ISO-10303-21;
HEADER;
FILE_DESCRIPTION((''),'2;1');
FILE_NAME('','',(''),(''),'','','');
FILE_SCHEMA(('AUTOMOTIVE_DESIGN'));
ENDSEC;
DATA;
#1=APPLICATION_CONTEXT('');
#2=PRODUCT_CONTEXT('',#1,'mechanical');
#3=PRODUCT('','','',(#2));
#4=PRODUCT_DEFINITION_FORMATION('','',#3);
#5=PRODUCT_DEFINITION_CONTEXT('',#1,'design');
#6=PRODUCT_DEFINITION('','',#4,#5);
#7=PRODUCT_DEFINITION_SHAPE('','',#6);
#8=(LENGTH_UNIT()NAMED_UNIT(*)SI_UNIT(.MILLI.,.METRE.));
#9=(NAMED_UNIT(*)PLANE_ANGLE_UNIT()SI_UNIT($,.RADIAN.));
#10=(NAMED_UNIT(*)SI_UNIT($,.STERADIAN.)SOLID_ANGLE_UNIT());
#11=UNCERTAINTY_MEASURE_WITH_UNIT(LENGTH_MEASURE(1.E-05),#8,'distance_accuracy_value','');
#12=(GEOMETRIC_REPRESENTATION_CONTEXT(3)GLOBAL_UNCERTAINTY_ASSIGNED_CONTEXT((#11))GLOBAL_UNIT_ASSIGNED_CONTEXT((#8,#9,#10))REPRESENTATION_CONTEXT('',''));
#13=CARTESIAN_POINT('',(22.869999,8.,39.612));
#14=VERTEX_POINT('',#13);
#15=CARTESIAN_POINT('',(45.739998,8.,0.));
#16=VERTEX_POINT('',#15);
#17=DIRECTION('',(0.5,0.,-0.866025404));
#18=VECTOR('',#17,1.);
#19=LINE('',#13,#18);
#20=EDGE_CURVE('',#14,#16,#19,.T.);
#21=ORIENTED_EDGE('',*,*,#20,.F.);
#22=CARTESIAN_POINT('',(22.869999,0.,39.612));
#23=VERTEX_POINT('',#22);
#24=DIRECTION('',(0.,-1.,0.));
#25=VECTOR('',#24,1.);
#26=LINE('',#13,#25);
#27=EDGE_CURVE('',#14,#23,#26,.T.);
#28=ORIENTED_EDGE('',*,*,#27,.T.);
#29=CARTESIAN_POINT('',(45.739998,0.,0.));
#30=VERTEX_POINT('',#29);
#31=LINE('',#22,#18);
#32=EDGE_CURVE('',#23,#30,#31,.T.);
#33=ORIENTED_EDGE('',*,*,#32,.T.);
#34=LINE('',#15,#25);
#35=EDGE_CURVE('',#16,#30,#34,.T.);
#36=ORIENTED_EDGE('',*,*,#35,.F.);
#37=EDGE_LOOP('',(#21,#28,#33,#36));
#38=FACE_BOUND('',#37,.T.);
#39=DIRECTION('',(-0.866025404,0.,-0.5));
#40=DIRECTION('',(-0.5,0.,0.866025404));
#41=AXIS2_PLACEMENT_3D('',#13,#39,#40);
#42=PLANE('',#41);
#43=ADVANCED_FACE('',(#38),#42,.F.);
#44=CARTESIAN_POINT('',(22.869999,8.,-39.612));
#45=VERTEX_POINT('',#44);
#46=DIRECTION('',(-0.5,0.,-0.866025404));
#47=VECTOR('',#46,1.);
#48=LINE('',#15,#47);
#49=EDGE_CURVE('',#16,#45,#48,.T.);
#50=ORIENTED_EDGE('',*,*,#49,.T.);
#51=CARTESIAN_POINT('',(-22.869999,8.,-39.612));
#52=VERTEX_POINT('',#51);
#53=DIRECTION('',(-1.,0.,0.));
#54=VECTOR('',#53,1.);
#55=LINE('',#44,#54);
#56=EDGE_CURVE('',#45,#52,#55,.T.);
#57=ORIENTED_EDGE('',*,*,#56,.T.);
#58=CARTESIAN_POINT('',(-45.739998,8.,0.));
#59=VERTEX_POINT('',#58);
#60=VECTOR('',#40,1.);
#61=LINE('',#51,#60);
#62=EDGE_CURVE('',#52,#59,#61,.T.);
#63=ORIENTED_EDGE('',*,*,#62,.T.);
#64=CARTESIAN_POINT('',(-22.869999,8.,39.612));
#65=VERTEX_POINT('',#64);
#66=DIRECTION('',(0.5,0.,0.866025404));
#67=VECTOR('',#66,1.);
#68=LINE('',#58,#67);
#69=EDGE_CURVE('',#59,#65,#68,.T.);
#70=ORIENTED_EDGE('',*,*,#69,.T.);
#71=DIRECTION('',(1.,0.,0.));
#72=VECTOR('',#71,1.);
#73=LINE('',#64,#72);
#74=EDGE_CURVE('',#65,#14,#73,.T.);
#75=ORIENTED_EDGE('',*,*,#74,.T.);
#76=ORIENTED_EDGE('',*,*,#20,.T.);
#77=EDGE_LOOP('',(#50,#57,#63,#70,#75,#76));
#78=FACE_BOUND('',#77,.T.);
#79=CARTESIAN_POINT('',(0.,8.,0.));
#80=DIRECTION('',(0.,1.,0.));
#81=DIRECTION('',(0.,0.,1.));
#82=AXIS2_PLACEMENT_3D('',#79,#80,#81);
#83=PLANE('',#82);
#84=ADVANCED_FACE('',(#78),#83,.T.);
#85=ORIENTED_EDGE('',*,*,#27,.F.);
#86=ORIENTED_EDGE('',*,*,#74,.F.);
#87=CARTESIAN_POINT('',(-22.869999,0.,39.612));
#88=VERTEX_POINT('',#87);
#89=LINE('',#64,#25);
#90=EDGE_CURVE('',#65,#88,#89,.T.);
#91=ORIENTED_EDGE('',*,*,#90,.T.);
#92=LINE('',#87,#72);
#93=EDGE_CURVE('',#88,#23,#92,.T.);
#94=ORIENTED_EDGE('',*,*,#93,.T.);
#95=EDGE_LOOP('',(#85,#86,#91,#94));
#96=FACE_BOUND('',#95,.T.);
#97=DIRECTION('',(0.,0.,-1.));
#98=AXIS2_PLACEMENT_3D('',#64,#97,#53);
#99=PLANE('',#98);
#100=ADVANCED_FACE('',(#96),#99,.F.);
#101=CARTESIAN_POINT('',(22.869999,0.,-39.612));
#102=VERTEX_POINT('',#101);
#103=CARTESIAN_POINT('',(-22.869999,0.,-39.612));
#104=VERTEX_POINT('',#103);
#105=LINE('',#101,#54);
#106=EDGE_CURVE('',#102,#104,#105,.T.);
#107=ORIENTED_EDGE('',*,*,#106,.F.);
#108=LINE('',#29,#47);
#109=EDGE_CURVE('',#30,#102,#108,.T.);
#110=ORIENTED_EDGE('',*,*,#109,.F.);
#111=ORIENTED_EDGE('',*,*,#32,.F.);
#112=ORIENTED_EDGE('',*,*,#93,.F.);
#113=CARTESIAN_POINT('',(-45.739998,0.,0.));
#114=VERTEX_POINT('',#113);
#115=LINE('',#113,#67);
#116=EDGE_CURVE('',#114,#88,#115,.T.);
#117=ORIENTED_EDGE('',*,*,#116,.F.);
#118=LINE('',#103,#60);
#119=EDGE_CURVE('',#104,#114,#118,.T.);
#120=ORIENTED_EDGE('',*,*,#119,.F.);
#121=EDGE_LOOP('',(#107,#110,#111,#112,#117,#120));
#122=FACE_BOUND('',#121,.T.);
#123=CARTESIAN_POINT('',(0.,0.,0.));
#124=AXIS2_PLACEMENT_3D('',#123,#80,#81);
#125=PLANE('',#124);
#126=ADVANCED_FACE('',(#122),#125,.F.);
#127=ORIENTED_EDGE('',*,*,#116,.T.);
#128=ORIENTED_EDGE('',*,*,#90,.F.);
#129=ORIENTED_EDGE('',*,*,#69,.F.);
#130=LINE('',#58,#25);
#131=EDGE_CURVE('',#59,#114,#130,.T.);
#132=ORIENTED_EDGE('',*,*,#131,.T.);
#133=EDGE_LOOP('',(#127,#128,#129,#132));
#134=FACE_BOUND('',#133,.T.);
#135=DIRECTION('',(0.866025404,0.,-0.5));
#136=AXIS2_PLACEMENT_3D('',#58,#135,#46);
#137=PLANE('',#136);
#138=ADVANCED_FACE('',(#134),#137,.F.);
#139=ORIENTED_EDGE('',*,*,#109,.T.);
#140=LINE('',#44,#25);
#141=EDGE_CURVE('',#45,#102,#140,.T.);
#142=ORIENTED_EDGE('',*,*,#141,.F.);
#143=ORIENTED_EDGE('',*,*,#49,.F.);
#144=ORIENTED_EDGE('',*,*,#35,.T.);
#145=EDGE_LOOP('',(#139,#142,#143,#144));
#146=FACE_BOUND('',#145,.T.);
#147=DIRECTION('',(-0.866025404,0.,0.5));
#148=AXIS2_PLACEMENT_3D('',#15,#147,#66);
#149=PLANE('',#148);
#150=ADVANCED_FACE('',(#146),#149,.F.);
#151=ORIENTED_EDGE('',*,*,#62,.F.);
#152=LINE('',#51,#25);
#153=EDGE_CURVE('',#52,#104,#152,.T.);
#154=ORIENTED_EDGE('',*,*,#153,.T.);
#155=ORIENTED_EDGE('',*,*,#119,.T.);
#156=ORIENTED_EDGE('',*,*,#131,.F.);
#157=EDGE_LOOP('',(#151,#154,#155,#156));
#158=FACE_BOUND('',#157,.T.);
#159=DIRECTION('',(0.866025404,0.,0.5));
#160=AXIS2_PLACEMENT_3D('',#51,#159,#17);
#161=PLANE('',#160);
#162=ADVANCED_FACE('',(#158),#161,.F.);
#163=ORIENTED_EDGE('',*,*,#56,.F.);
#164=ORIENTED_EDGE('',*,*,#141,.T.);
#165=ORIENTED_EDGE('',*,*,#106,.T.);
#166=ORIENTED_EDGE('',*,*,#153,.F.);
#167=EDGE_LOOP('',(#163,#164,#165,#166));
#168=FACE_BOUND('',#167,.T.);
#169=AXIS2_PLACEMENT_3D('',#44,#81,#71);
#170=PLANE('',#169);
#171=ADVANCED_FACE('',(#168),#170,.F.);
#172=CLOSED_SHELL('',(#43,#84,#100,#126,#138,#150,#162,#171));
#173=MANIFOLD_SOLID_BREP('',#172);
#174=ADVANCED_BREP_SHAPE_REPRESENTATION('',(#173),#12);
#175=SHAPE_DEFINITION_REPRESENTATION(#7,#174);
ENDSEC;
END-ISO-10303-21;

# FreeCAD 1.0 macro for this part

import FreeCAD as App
import Part
import Sketcher
Q = App.Units.Quantity

doc = App.newDocument("Part")
params = doc.addObject("Spreadsheet::Sheet", "Params")
for row, (alias, value) in enumerate([
    ("pad1_length", "8 mm"),
], start=1):
    params.set(f"A{row}", alias)
    params.set(f"B{row}", "=" + value)
    params.setAlias(f"B{row}", alias)

body = doc.addObject("PartDesign::Body", "Body")

# Sketch on XZ plane
sketch1 = doc.addObject("Sketcher::SketchObject", "Sketch")
body.addObject(sketch1)
sketch1.AttachmentSupport = (doc.XZ_Plane, [""])
sketch1.MapMode = "FlatFace"
sketch1.addGeometry(Part.LineSegment(App.Vector(45.739998, 0, 0), App.Vector(22.869999, -39.612, 0)), False)
sketch1.addGeometry(Part.LineSegment(App.Vector(22.869999, -39.612, 0), App.Vector(-22.869999, -39.612, 0)), False)
sketch1.addGeometry(Part.LineSegment(App.Vector(-22.869999, -39.612, 0), App.Vector(-45.739998, 0, 0)), False)
sketch1.addGeometry(Part.LineSegment(App.Vector(-45.739998, 0, 0), App.Vector(-22.869999, 39.612, 0)), False)
sketch1.addGeometry(Part.LineSegment(App.Vector(-22.869999, 39.612, 0), App.Vector(22.869999, 39.612, 0)), False)
sketch1.addGeometry(Part.LineSegment(App.Vector(22.869999, 39.612, 0), App.Vector(45.739998, 0, 0)), False)
sketch1.addConstraint(Sketcher.Constraint("Coincident", 0, 2, 1, 1))
sketch1.addConstraint(Sketcher.Constraint("Coincident", 1, 2, 2, 1))
sketch1.addConstraint(Sketcher.Constraint("Coincident", 2, 2, 3, 1))
sketch1.addConstraint(Sketcher.Constraint("Coincident", 3, 2, 4, 1))
sketch1.addConstraint(Sketcher.Constraint("Coincident", 4, 2, 5, 1))
sketch1.addConstraint(Sketcher.Constraint("Coincident", 5, 2, 0, 1))
sketch1.addConstraint(Sketcher.Constraint("Horizontal", 1))
sketch1.addConstraint(Sketcher.Constraint("Horizontal", 4))
sketch1.addConstraint(Sketcher.Constraint("Symmetric", 0, 2, 3, 2, -1, 1))
sketch1.addConstraint(Sketcher.Constraint("Symmetric", 2, 2, 5, 2, -1, 1))
sketch1.addConstraint(Sketcher.Constraint("PointOnObject", 2, 2, -1))
sketch1.addConstraint(Sketcher.Constraint("Parallel", 2, 5))
sketch1.addConstraint(Sketcher.Constraint("Vertical", 1, 2, 3, 2))
sketch1.addConstraint(Sketcher.Constraint("Angle", 0, Q("-120 deg")))
sketch1.addConstraint(Sketcher.Constraint("DistanceX", -1, 1, 0, 2, 22.869999))
sketch1.addConstraint(Sketcher.Constraint("DistanceX", 2, 2, 1, 2, 22.869999))
pad1 = doc.addObject("PartDesign::Pad", "Pad")
body.addObject(pad1)
pad1.Profile = sketch1
pad1.setExpression("Length", "Params.pad1_length")
pad1.Reversed = True

doc.recompute()
